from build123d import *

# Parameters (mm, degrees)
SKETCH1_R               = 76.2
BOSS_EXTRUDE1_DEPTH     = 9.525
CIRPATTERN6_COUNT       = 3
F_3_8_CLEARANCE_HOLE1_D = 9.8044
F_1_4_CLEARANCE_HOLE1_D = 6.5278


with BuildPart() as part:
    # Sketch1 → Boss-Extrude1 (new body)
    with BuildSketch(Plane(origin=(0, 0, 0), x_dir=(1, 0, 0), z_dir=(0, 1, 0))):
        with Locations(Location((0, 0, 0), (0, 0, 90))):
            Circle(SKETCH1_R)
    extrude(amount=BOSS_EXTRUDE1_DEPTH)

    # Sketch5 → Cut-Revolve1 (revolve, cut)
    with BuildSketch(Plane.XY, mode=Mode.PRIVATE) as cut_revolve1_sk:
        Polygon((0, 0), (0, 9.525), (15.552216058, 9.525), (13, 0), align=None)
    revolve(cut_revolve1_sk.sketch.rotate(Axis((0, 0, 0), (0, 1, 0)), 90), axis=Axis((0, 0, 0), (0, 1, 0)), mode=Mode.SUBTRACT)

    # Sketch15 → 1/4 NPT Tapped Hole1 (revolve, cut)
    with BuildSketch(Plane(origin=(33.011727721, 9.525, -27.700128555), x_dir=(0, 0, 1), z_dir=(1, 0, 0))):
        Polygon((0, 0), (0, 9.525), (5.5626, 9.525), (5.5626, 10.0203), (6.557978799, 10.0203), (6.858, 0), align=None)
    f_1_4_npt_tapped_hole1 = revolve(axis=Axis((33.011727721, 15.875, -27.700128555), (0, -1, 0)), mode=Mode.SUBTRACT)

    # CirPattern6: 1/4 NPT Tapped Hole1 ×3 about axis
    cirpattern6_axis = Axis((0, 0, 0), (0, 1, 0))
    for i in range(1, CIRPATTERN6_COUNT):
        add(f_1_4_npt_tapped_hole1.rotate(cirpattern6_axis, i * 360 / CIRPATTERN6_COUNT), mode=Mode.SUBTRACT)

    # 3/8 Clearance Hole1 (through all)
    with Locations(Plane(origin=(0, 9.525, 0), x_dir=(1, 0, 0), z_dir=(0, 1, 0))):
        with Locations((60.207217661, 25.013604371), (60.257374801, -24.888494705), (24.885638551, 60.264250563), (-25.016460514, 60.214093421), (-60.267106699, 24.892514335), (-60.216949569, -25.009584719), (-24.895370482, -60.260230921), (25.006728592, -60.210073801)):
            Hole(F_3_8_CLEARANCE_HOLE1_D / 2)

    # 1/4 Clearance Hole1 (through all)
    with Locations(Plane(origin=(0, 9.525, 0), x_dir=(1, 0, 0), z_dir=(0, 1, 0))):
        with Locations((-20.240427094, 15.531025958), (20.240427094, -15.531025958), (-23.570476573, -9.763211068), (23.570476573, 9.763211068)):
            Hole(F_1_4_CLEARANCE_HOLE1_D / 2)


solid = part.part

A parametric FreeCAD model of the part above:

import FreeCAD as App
import Part
import Sketcher

V = App.Vector
Q = App.Units.Quantity


def add_polygon(sketch, points):
    """Adds a closed chain of lines whose ends are joined by coincident constraints."""
    first, n = sketch.GeometryCount, len(points)
    for a, b in zip(points, points[1:] + points[:1]):
        sketch.addGeometry(Part.LineSegment(App.Vector(*a, 0), App.Vector(*b, 0)), False)
    for i in range(n):
        sketch.addConstraint(Sketcher.Constraint("Coincident", first + i, 2, first + (i + 1) % n, 1))

doc = App.newDocument("Part")
body = doc.addObject("PartDesign::Body", "Body")

sketch1 = doc.addObject("Sketcher::SketchObject", "Sketch")
body.addObject(sketch1)
sketch1.AttachmentSupport = (doc.XZ_Plane, [""])
sketch1.MapMode = "FlatFace"
sketch1.addGeometry(Part.Circle(V(0, 0, 0), V(0, 0, 1), 76.2), False)
sketch1.addConstraint([
    Sketcher.Constraint("Coincident", 0, 3, -1, 1),
    Sketcher.Constraint("Diameter", 0, Q("6 in")),
])
pad1 = doc.addObject("PartDesign::Pad", "Pad")
body.addObject(pad1)
pad1.Profile = sketch1
pad1.Length = Q("0.375 in")
pad1.Reversed = True

sketch2 = doc.addObject("Sketcher::SketchObject", "Sketch001")
body.addObject(sketch2)
sketch2.AttachmentSupport = (doc.XY_Plane, [""])
sketch2.MapMode = "FlatFace"
add_polygon(sketch2, [(0, 9.525), (0, 0), (13, 0), (15.552216, 9.525)])
sketch2.addConstraint([
    Sketcher.Constraint("Vertical", 0),
    Sketcher.Constraint("Horizontal", 1),
    Sketcher.Constraint("Horizontal", 3),
    Sketcher.Constraint("Coincident", 0, 2, -1, 1),
    Sketcher.Constraint("Angle", 2, Q("75 deg")),
    Sketcher.Constraint("DistanceY", 0, 2, 0, 1, Q("0.375 in")),
    Sketcher.Constraint("DistanceX", 1, 1, 1, 2, Q("13 mm")),
])
groove = doc.addObject("PartDesign::Groove", "Groove")
body.addObject(groove)
groove.Profile = sketch2
groove.ReferenceAxis = (sketch2, ["V_Axis"])
groove.Angle = 360

sketch3 = doc.addObject("Sketcher::SketchObject", "Sketch002")
body.addObject(sketch3)
sketch3.AttachmentSupport = (doc.YZ_Plane, [""])
sketch3.MapMode = "FlatFace"
sketch3.AttachmentOffset = App.Placement(V(0, 0, 33.011728), App.Rotation())
add_polygon(sketch3, [(0, -27.700129), (9.525, -27.700129), (9.525, -20.842129), (-0.4953, -21.14215), (-0.4953, -22.137529), (0, -22.137529)])
sketch3.addGeometry(Part.LineSegment(V(9.525, -27.700129, 0), V(-0.4953, -27.700129, 0)), True)
sketch3.addConstraint([
    Sketcher.Constraint("Horizontal", 0),
    Sketcher.Constraint("Vertical", 1),
    Sketcher.Constraint("Vertical", 3),
    Sketcher.Constraint("Horizontal", 4),
    Sketcher.Constraint("Vertical", 5),
    Sketcher.Constraint("Horizontal", 6),
    Sketcher.Constraint("Coincident", 6, 1, 0, 2),
    Sketcher.Constraint("PointOnObject", 4, 2, -2),
    Sketcher.Constraint("Vertical", 3, 2, 6, 2),
    Sketcher.Constraint("DistanceY", 1, 1, 1, 2, Q("0.27 in")),
    Sketcher.Constraint("DistanceX", 0, 1, 0, 2, Q("0.375 in")),
    Sketcher.Constraint("DistanceY", 5, 2, 5, 1, Q("0.219 in")),
    Sketcher.Constraint("DistanceX", 4, 1, 4, 2, Q("0.0195 in")),
    Sketcher.Constraint("DistanceY", 3, 2, 3, 1, Q("0.995379 mm")),
    Sketcher.Constraint("DistanceY", 0, 2, -1, 1, Q("27.700129 mm")),
])
groove2 = doc.addObject("PartDesign::Groove", "Groove001")
body.addObject(groove2)
groove2.Profile = sketch3
groove2.ReferenceAxis = (sketch3, ["Axis0"])
groove2.Angle = 360
doc.recompute()

polarpattern = doc.addObject("PartDesign::PolarPattern", "PolarPattern")
body.addObject(polarpattern)
polarpattern.Originals = [groove2]
polarpattern.Axis = (doc.Y_Axis, [""])
polarpattern.Angle = 360
polarpattern.Occurrences = 3
body.Tip = polarpattern

sketch4 = doc.addObject("Sketcher::SketchObject", "Sketch003")
body.addObject(sketch4)
sketch4.AttachmentSupport = (doc.XZ_Plane, [""])
sketch4.MapMode = "FlatFace"
sketch4.AttachmentOffset = App.Placement(V(0, 0, -0.375 * 25.4), App.Rotation())
sketch4.addGeometry([
    Part.Circle(V(60.207218, -25.013604, 0), V(0, 0, 1), 4.9022),
    Part.Circle(V(60.257375, 24.888495, 0), V(0, 0, 1), 4.9022),
    Part.Circle(V(24.885639, -60.264251, 0), V(0, 0, 1), 4.9022),
    Part.Circle(V(-25.016461, -60.214093, 0), V(0, 0, 1), 4.9022),
    Part.Circle(V(-60.267107, -24.892514, 0), V(0, 0, 1), 4.9022),
    Part.Circle(V(-60.21695, 25.009585, 0), V(0, 0, 1), 4.9022),
    Part.Circle(V(-24.89537, 60.260231, 0), V(0, 0, 1), 4.9022),
    Part.Circle(V(25.006729, 60.210074, 0), V(0, 0, 1), 4.9022),
], False)
sketch4.addConstraint([
    Sketcher.Constraint("Equal", 0, 1),
    Sketcher.Constraint("Equal", 1, 2),
    Sketcher.Constraint("Equal", 2, 3),
    Sketcher.Constraint("Equal", 3, 4),
    Sketcher.Constraint("Equal", 4, 5),
    Sketcher.Constraint("Equal", 5, 6),
    Sketcher.Constraint("Equal", 6, 7),
    Sketcher.Constraint("Diameter", 0, Q("0.386 in")),
    Sketcher.Constraint("DistanceX", 3, 3, -1, 1, Q("0.9849 in")),
    Sketcher.Constraint("DistanceY", 0, 3, 1, 3, Q("49.902099 mm")),
    Sketcher.Constraint("DistanceX", 3, 3, 2, 3, Q("49.902099 mm")),
    Sketcher.Constraint("DistanceY", 4, 3, 5, 3, Q("49.902099 mm")),
    Sketcher.Constraint("DistanceX", 6, 3, 7, 3, Q("49.902099 mm")),
    Sketcher.Constraint("DistanceY", 2, 3, -1, 1, Q("60.264251 mm")),
    Sketcher.Constraint("DistanceX", 5, 3, -1, 1, Q("60.21695 mm")),
    Sketcher.Constraint("DistanceX", 6, 3, -1, 1, Q("24.89537 mm")),
    Sketcher.Constraint("DistanceY", -1, 1, 6, 3, Q("60.260231 mm")),
    Sketcher.Constraint("DistanceX", 2, 3, 0, 3, Q("35.321579 mm")),
    Sketcher.Constraint("DistanceY", 3, 3, 0, 3, Q("35.200489 mm")),
    Sketcher.Constraint("DistanceY", 3, 3, 4, 3, Q("35.321579 mm")),
    Sketcher.Constraint("DistanceX", 4, 3, 1, 3, Q("120.524482 mm")),
    Sketcher.Constraint("DistanceY", 1, 3, 7, 3, Q("35.321579 mm")),
    Sketcher.Constraint("DistanceY", 0, 3, -1, 1, Q("25.013604 mm")),
    Sketcher.Constraint("DistanceX", -1, 1, 1, 3, Q("60.257375 mm")),
])
doc.recompute()
hole = doc.addObject("PartDesign::Hole", "Hole")
body.addObject(hole)
hole.Profile = sketch4
hole.ThreadType = "None"
hole.Diameter = Q("0.386 in")
hole.DepthType = "ThroughAll"
hole.Reversed = True

sketch5 = doc.addObject("Sketcher::SketchObject", "Sketch004")
body.addObject(sketch5)
sketch5.AttachmentSupport = (doc.XZ_Plane, [""])
sketch5.MapMode = "FlatFace"
sketch5.AttachmentOffset = App.Placement(V(0, 0, -0.375 * 25.4), App.Rotation())
sketch5.addGeometry([
    Part.Circle(V(-20.240427, -15.531026, 0), V(0, 0, 1), 3.2639),
    Part.Circle(V(20.240427, 15.531026, 0), V(0, 0, 1), 3.2639),
    Part.Circle(V(-23.570477, 9.763211, 0), V(0, 0, 1), 3.2639),
    Part.Circle(V(23.570477, -9.763211, 0), V(0, 0, 1), 3.2639),
], False)
sketch5.addConstraint([
    Sketcher.Constraint("Equal", 0, 1),
    Sketcher.Constraint("Equal", 1, 2),
    Sketcher.Constraint("Equal", 2, 3),
    Sketcher.Constraint("Symmetric", 0, 3, 1, 3, -1, 1),
    Sketcher.Constraint("Symmetric", 2, 3, 3, 3, -1, 1),
    Sketcher.Constraint("Diameter", 0, Q("0.257 in")),
    Sketcher.Constraint("DistanceY", -1, 1, 2, 3, Q("9.763211 mm")),
    Sketcher.Constraint("DistanceY", 0, 3, 1, 3, Q("31.062052 mm")),
    Sketcher.Constraint("DistanceX", 2, 3, 0, 3, Q("3.330049 mm")),
    Sketcher.Constraint("DistanceX", 0, 3, -1, 1, Q("20.240427 mm")),
])
doc.recompute()
hole2 = doc.addObject("PartDesign::Hole", "Hole001")
body.addObject(hole2)
hole2.Profile = sketch5
hole2.ThreadType = "None"
hole2.Diameter = Q("0.257 in")
hole2.DepthType = "ThroughAll"
hole2.Reversed = True

doc.recompute()
